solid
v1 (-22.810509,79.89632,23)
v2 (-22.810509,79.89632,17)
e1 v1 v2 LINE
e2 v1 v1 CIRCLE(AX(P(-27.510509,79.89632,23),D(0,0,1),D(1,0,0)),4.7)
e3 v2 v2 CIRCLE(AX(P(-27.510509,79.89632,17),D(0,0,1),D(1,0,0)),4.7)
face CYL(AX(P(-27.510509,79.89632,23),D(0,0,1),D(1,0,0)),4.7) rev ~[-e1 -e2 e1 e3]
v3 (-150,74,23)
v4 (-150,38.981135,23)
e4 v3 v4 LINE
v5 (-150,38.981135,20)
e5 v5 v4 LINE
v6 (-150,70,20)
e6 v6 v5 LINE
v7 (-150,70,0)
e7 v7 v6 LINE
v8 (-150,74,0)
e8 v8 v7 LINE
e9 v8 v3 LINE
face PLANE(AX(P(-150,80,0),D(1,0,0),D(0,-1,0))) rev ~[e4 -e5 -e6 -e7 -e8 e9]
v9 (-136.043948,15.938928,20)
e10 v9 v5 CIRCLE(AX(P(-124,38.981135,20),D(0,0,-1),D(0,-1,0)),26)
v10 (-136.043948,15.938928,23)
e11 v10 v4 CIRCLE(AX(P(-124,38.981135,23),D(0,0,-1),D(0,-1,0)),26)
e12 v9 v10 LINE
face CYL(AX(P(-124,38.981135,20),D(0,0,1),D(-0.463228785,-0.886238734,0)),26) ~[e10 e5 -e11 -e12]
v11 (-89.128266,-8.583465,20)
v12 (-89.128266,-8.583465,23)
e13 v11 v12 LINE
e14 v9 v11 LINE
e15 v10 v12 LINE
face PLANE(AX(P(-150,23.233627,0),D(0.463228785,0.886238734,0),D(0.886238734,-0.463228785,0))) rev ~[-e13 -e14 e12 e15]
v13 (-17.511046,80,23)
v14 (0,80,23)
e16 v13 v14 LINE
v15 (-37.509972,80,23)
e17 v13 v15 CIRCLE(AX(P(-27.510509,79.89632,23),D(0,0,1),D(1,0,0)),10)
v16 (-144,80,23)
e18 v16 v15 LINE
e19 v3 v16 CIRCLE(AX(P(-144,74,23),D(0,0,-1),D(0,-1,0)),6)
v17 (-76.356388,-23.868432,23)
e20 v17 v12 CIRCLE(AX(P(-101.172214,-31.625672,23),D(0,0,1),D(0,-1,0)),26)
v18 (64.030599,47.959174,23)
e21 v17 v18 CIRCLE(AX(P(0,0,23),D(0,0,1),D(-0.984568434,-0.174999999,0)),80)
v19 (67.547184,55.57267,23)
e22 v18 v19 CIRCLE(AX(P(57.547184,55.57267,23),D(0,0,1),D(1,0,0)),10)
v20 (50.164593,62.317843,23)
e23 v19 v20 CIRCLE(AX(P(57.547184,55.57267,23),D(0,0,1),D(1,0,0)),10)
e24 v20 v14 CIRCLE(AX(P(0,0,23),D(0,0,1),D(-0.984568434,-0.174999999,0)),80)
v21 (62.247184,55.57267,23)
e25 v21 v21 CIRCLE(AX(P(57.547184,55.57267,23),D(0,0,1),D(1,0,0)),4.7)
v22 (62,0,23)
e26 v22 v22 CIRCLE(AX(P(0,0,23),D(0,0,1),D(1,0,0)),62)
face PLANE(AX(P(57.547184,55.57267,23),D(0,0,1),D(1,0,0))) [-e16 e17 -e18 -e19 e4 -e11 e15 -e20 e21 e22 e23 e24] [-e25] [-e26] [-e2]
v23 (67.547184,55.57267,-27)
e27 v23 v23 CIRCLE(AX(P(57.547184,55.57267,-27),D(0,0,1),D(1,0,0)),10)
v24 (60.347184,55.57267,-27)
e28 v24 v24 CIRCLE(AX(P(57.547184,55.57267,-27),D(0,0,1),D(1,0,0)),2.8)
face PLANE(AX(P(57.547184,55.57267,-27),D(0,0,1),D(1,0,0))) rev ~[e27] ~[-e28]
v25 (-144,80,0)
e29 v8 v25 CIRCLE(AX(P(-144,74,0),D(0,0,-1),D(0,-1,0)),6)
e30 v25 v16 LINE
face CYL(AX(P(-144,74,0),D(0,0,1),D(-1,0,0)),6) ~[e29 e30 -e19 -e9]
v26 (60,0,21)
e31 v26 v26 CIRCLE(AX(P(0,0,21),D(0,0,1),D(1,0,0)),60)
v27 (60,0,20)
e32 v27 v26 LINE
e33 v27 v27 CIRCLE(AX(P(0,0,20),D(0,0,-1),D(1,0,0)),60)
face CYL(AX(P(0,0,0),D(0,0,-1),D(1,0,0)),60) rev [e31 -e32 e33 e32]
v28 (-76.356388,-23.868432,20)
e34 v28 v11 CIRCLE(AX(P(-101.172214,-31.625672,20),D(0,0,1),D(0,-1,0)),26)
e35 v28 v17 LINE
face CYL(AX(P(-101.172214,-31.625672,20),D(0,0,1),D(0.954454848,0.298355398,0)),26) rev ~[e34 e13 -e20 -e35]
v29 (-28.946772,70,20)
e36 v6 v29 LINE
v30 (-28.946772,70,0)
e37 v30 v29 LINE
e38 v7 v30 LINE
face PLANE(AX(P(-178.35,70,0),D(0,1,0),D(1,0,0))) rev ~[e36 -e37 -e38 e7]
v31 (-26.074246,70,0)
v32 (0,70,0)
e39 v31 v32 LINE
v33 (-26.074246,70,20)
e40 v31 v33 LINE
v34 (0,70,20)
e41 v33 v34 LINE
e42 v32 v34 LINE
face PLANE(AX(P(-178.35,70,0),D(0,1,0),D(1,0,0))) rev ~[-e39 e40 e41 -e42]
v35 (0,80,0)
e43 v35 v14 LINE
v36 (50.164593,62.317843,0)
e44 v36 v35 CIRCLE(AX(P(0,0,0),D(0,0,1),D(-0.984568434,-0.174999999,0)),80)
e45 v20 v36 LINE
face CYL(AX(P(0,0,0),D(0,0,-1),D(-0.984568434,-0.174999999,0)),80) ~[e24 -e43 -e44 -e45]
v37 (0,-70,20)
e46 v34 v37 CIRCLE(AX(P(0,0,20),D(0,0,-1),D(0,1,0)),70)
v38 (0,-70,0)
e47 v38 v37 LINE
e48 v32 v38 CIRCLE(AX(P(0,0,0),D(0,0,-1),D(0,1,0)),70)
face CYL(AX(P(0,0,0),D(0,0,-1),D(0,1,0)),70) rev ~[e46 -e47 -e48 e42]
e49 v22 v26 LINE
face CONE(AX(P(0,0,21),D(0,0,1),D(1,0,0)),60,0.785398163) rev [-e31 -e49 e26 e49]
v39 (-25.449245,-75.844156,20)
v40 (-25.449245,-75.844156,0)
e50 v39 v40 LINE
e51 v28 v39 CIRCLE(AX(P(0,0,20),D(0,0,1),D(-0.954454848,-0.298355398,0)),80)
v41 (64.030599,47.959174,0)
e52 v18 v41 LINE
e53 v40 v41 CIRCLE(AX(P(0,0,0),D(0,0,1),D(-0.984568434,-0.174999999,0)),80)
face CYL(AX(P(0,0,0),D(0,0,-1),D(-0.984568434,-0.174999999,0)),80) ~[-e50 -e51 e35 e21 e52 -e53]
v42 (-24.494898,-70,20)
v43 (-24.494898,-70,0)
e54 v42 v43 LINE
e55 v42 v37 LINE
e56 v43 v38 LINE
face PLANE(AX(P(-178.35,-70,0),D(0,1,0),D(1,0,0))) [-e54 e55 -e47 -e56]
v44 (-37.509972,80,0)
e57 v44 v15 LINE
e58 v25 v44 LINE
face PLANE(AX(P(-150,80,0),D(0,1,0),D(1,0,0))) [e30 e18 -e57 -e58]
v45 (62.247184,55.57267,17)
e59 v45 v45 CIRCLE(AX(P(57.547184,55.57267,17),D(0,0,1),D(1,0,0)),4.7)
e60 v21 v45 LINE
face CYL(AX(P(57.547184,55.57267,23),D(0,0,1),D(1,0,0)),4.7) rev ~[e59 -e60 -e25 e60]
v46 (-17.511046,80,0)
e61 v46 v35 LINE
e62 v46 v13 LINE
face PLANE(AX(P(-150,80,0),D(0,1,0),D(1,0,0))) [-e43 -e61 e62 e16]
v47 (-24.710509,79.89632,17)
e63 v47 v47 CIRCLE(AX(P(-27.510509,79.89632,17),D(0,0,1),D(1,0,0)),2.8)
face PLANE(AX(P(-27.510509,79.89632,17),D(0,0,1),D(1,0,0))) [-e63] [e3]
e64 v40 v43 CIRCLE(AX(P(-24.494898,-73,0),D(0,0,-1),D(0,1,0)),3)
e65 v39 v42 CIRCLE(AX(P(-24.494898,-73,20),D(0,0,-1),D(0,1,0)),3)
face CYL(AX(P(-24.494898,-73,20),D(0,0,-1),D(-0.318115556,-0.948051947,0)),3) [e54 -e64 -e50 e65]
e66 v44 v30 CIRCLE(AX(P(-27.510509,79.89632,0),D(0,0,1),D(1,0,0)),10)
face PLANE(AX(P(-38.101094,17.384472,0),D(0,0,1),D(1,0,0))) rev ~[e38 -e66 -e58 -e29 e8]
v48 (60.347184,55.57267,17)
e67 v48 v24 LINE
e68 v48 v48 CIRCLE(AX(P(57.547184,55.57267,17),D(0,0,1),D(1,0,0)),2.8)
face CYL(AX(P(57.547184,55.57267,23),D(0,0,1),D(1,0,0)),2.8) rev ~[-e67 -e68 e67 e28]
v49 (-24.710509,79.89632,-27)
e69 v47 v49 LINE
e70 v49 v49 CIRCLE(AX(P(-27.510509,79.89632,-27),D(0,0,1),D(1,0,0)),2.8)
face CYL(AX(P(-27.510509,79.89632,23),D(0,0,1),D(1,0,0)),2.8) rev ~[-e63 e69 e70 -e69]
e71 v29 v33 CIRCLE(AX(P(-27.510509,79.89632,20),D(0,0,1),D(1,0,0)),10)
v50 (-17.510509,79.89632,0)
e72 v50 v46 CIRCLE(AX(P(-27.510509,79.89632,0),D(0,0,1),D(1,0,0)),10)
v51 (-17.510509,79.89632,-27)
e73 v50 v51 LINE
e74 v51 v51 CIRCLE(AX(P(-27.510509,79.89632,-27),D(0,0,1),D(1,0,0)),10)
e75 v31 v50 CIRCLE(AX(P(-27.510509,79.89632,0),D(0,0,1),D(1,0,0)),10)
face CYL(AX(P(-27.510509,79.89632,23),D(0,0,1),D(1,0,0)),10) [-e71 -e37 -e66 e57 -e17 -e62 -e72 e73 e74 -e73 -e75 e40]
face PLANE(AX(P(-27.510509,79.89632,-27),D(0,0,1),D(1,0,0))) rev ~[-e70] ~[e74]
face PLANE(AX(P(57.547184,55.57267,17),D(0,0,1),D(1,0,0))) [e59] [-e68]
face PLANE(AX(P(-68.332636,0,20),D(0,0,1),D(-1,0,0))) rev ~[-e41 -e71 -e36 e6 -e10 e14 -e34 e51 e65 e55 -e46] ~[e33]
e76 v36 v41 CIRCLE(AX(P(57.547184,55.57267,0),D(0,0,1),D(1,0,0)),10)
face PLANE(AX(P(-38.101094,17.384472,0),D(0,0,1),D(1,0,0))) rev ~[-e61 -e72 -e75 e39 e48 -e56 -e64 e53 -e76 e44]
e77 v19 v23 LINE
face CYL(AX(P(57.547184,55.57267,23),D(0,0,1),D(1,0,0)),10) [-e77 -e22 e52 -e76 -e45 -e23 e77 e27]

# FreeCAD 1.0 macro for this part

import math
import FreeCAD as App
import Part
import Sketcher

V = App.Vector


def edges_at(feature, points):
    """Names of the edges that pass closest to the given points."""
    edges = feature.Shape.Edges
    near = lambda p: min(range(len(edges)), key=lambda i: edges[i].distToShape(Part.Vertex(*p))[0])
    return sorted({f"Edge{near(p) + 1}" for p in points})

doc = App.newDocument("Part")
body = doc.addObject("PartDesign::Body", "Body")

# Sketch on XY plane
sketch1 = body.newObject("Sketcher::SketchObject", "Sketch")
sketch1.AttachmentSupport = (doc.getObject("XY_Plane"), [""])
sketch1.MapMode = "FlatFace"
sketch1.addGeometry([
    Part.ArcOfCircle(Part.Circle(V(0, 0, 0), V(0, 0, 1), 80), math.radians(-170), math.radians(90)),  # 0
    Part.LineSegment(V(0, 80, 0), V(-150, 80, 0)),  # 1
    Part.LineSegment(V(-150, 80, 0), V(-150, 23, 0)),  # 2
    Part.LineSegment(V(-150, 23, 0), V(-79, -14, 0)),  # 3
    Part.Circle(V(0, 0, 0), V(0, 0, 1), 60),  # 4
], False)
sketch1.addConstraint([
    Sketcher.Constraint("Tangent", 0, 2, 1, 1),
    Sketcher.Constraint("Coincident", 1, 2, 2, 1),
    Sketcher.Constraint("Coincident", 2, 2, 3, 1),
    Sketcher.Constraint("Coincident", 3, 2, 0, 1),
    Sketcher.Constraint("Horizontal", 1),
    Sketcher.Constraint("Vertical", 2),
    Sketcher.Constraint("Coincident", 0, 3, -1, 1),
    Sketcher.Constraint("Coincident", 4, 3, -1, 1),
    Sketcher.Constraint("Diameter", 4, 120.0),
    Sketcher.Constraint("Radius", 0, 80.0),
    Sketcher.Constraint("DistanceX", 1, 2, 1, 1, 150.0),
    Sketcher.Constraint("DistanceY", 3, 2, -1, 1, 14.0),
    Sketcher.Constraint("DistanceY", 2, 2, 2, 1, 56.766373),
])
pad1 = body.newObject("PartDesign::Pad", "Pad")
pad1.Profile = sketch1
pad1.Length = 23

# Sketch on XY plane
sketch2 = body.newObject("Sketcher::SketchObject", "Sketch001")
sketch2.AttachmentSupport = (doc.getObject("XY_Plane"), [""])
sketch2.MapMode = "FlatFace"
sketch2.addGeometry([
    Part.LineSegment(V(0, -70, 0), V(-178, -70, 0)),
    Part.LineSegment(V(-178, -70, 0), V(-178, 70, 0)),
    Part.LineSegment(V(-178, 70, 0), V(0, 70, 0)),
    Part.ArcOfCircle(Part.Circle(V(0, 0, 0), V(0, 0, 1), 70), math.radians(-90), math.radians(90)),
], False)
sketch2.addConstraint([
    Sketcher.Constraint("Coincident", 0, 2, 1, 1),
    Sketcher.Constraint("Coincident", 1, 2, 2, 1),
    Sketcher.Constraint("Tangent", 2, 2, 3, 2),
    Sketcher.Constraint("Tangent", 3, 1, 0, 1),
    Sketcher.Constraint("Horizontal", 0),
    Sketcher.Constraint("Vertical", 1),
    Sketcher.Constraint("Horizontal", 2),
    Sketcher.Constraint("Coincident", 3, 3, -1, 1),
    Sketcher.Constraint("Radius", 3, 70.0),
    Sketcher.Constraint("DistanceX", 0, 2, 0, 1, 178.35),
])
pocket1 = body.newObject("PartDesign::Pocket", "Pocket")
pocket1.Profile = sketch2
pocket1.Length = 20
pocket1.Reversed = True

# Sketch on XY plane
sketch3 = body.newObject("Sketcher::SketchObject", "Sketch002")
sketch3.AttachmentSupport = (doc.getObject("XY_Plane"), [""])
sketch3.MapMode = "FlatFace"
sketch3.AttachmentOffset = App.Placement(V(0, 0, 23), App.Rotation())
sketch3.addGeometry([
    Part.Circle(V(58, 56, 0), V(0, 0, 1), 10),
    Part.Circle(V(-28, 80, 0), V(0, 0, 1), 10),
], False)
sketch3.addConstraint([
    Sketcher.Constraint("Equal", 0, 1),
    Sketcher.Constraint("Diameter", 0, 20.0),
    Sketcher.Constraint("DistanceY", -1, 1, 0, 3, 55.57267),
    Sketcher.Constraint("DistanceX", 1, 3, -1, 1, 27.510509),
    Sketcher.Constraint("DistanceY", -1, 1, 1, 3, 79.89632),
    Sketcher.Constraint("DistanceX", -1, 1, 0, 3, 57.547184),
])
pad2 = body.newObject("PartDesign::Pad", "Pad001")
pad2.Profile = sketch3
pad2.Length = 50
pad2.Reversed = True

# Sketch on XY plane
sketch4 = body.newObject("Sketcher::SketchObject", "Sketch003")
sketch4.AttachmentSupport = (doc.getObject("XY_Plane"), [""])
sketch4.MapMode = "FlatFace"
sketch4.AttachmentOffset = App.Placement(V(0, 0, 23), App.Rotation())
sketch4.addGeometry([
    Part.Circle(V(-27.5, 79.9, 0), V(0, 0, 1), 2.8),
    Part.Circle(V(57.5, 55.6, 0), V(0, 0, 1), 2.8),
], False)
sketch4.addConstraint([
    Sketcher.Constraint("Equal", 0, 1),
    Sketcher.Constraint("Diameter", 0, 5.6),
    Sketcher.Constraint("DistanceX", 0, 3, -1, 1, 27.510509),
    Sketcher.Constraint("DistanceY", -1, 1, 0, 3, 79.89632),
    Sketcher.Constraint("DistanceY", -1, 1, 1, 3, 55.57267),
    Sketcher.Constraint("DistanceX", -1, 1, 1, 3, 57.547184),
])
pocket2 = body.newObject("PartDesign::Pocket", "Pocket001")
pocket2.Profile = sketch4
pocket2.Type = "ThroughAll"

# Sketch on XY plane
sketch5 = body.newObject("Sketcher::SketchObject", "Sketch004")
sketch5.AttachmentSupport = (doc.getObject("XY_Plane"), [""])
sketch5.MapMode = "FlatFace"
sketch5.AttachmentOffset = App.Placement(V(0, 0, 23), App.Rotation())
sketch5.addGeometry([
    Part.Circle(V(-27.5, 79.9, 0), V(0, 0, 1), 4.7),
    Part.Circle(V(57.5, 55.6, 0), V(0, 0, 1), 4.7),
], False)
sketch5.addConstraint([
    Sketcher.Constraint("Equal", 0, 1),
    Sketcher.Constraint("Diameter", 0, 9.4),
    Sketcher.Constraint("DistanceX", 0, 3, -1, 1, 27.510509),
    Sketcher.Constraint("DistanceY", -1, 1, 0, 3, 79.89632),
    Sketcher.Constraint("DistanceY", -1, 1, 1, 3, 55.57267),
    Sketcher.Constraint("DistanceX", -1, 1, 1, 3, 57.547184),
])
pocket3 = body.newObject("PartDesign::Pocket", "Pocket002")
pocket3.Profile = sketch5
pocket3.Length = 6
doc.recompute()

fillet = body.newObject("PartDesign::Fillet", "Fillet")
fillet.Base = (pocket3, edges_at(pocket3, [(-150, 23.234, 21.5), (-78.765, -14, 21.5)]))
fillet.Radius = 26
doc.recompute()

chamfer = body.newObject("PartDesign::Chamfer", "Chamfer")
chamfer.Base = (fillet, edges_at(fillet, [(-60, 0, 23)]))
chamfer.Size = 2
doc.recompute()

fillet2 = body.newObject("PartDesign::Fillet", "Fillet001")
fillet2.Base = (chamfer, edges_at(chamfer, [(-150, 80, 11.5)]))
fillet2.Radius = 6
doc.recompute()

fillet3 = body.newObject("PartDesign::Fillet", "Fillet002")
fillet3.Base = (fillet2, edges_at(fillet2, [(-38.73, -70, 10)]))
fillet3.Radius = 3

doc.recompute()
